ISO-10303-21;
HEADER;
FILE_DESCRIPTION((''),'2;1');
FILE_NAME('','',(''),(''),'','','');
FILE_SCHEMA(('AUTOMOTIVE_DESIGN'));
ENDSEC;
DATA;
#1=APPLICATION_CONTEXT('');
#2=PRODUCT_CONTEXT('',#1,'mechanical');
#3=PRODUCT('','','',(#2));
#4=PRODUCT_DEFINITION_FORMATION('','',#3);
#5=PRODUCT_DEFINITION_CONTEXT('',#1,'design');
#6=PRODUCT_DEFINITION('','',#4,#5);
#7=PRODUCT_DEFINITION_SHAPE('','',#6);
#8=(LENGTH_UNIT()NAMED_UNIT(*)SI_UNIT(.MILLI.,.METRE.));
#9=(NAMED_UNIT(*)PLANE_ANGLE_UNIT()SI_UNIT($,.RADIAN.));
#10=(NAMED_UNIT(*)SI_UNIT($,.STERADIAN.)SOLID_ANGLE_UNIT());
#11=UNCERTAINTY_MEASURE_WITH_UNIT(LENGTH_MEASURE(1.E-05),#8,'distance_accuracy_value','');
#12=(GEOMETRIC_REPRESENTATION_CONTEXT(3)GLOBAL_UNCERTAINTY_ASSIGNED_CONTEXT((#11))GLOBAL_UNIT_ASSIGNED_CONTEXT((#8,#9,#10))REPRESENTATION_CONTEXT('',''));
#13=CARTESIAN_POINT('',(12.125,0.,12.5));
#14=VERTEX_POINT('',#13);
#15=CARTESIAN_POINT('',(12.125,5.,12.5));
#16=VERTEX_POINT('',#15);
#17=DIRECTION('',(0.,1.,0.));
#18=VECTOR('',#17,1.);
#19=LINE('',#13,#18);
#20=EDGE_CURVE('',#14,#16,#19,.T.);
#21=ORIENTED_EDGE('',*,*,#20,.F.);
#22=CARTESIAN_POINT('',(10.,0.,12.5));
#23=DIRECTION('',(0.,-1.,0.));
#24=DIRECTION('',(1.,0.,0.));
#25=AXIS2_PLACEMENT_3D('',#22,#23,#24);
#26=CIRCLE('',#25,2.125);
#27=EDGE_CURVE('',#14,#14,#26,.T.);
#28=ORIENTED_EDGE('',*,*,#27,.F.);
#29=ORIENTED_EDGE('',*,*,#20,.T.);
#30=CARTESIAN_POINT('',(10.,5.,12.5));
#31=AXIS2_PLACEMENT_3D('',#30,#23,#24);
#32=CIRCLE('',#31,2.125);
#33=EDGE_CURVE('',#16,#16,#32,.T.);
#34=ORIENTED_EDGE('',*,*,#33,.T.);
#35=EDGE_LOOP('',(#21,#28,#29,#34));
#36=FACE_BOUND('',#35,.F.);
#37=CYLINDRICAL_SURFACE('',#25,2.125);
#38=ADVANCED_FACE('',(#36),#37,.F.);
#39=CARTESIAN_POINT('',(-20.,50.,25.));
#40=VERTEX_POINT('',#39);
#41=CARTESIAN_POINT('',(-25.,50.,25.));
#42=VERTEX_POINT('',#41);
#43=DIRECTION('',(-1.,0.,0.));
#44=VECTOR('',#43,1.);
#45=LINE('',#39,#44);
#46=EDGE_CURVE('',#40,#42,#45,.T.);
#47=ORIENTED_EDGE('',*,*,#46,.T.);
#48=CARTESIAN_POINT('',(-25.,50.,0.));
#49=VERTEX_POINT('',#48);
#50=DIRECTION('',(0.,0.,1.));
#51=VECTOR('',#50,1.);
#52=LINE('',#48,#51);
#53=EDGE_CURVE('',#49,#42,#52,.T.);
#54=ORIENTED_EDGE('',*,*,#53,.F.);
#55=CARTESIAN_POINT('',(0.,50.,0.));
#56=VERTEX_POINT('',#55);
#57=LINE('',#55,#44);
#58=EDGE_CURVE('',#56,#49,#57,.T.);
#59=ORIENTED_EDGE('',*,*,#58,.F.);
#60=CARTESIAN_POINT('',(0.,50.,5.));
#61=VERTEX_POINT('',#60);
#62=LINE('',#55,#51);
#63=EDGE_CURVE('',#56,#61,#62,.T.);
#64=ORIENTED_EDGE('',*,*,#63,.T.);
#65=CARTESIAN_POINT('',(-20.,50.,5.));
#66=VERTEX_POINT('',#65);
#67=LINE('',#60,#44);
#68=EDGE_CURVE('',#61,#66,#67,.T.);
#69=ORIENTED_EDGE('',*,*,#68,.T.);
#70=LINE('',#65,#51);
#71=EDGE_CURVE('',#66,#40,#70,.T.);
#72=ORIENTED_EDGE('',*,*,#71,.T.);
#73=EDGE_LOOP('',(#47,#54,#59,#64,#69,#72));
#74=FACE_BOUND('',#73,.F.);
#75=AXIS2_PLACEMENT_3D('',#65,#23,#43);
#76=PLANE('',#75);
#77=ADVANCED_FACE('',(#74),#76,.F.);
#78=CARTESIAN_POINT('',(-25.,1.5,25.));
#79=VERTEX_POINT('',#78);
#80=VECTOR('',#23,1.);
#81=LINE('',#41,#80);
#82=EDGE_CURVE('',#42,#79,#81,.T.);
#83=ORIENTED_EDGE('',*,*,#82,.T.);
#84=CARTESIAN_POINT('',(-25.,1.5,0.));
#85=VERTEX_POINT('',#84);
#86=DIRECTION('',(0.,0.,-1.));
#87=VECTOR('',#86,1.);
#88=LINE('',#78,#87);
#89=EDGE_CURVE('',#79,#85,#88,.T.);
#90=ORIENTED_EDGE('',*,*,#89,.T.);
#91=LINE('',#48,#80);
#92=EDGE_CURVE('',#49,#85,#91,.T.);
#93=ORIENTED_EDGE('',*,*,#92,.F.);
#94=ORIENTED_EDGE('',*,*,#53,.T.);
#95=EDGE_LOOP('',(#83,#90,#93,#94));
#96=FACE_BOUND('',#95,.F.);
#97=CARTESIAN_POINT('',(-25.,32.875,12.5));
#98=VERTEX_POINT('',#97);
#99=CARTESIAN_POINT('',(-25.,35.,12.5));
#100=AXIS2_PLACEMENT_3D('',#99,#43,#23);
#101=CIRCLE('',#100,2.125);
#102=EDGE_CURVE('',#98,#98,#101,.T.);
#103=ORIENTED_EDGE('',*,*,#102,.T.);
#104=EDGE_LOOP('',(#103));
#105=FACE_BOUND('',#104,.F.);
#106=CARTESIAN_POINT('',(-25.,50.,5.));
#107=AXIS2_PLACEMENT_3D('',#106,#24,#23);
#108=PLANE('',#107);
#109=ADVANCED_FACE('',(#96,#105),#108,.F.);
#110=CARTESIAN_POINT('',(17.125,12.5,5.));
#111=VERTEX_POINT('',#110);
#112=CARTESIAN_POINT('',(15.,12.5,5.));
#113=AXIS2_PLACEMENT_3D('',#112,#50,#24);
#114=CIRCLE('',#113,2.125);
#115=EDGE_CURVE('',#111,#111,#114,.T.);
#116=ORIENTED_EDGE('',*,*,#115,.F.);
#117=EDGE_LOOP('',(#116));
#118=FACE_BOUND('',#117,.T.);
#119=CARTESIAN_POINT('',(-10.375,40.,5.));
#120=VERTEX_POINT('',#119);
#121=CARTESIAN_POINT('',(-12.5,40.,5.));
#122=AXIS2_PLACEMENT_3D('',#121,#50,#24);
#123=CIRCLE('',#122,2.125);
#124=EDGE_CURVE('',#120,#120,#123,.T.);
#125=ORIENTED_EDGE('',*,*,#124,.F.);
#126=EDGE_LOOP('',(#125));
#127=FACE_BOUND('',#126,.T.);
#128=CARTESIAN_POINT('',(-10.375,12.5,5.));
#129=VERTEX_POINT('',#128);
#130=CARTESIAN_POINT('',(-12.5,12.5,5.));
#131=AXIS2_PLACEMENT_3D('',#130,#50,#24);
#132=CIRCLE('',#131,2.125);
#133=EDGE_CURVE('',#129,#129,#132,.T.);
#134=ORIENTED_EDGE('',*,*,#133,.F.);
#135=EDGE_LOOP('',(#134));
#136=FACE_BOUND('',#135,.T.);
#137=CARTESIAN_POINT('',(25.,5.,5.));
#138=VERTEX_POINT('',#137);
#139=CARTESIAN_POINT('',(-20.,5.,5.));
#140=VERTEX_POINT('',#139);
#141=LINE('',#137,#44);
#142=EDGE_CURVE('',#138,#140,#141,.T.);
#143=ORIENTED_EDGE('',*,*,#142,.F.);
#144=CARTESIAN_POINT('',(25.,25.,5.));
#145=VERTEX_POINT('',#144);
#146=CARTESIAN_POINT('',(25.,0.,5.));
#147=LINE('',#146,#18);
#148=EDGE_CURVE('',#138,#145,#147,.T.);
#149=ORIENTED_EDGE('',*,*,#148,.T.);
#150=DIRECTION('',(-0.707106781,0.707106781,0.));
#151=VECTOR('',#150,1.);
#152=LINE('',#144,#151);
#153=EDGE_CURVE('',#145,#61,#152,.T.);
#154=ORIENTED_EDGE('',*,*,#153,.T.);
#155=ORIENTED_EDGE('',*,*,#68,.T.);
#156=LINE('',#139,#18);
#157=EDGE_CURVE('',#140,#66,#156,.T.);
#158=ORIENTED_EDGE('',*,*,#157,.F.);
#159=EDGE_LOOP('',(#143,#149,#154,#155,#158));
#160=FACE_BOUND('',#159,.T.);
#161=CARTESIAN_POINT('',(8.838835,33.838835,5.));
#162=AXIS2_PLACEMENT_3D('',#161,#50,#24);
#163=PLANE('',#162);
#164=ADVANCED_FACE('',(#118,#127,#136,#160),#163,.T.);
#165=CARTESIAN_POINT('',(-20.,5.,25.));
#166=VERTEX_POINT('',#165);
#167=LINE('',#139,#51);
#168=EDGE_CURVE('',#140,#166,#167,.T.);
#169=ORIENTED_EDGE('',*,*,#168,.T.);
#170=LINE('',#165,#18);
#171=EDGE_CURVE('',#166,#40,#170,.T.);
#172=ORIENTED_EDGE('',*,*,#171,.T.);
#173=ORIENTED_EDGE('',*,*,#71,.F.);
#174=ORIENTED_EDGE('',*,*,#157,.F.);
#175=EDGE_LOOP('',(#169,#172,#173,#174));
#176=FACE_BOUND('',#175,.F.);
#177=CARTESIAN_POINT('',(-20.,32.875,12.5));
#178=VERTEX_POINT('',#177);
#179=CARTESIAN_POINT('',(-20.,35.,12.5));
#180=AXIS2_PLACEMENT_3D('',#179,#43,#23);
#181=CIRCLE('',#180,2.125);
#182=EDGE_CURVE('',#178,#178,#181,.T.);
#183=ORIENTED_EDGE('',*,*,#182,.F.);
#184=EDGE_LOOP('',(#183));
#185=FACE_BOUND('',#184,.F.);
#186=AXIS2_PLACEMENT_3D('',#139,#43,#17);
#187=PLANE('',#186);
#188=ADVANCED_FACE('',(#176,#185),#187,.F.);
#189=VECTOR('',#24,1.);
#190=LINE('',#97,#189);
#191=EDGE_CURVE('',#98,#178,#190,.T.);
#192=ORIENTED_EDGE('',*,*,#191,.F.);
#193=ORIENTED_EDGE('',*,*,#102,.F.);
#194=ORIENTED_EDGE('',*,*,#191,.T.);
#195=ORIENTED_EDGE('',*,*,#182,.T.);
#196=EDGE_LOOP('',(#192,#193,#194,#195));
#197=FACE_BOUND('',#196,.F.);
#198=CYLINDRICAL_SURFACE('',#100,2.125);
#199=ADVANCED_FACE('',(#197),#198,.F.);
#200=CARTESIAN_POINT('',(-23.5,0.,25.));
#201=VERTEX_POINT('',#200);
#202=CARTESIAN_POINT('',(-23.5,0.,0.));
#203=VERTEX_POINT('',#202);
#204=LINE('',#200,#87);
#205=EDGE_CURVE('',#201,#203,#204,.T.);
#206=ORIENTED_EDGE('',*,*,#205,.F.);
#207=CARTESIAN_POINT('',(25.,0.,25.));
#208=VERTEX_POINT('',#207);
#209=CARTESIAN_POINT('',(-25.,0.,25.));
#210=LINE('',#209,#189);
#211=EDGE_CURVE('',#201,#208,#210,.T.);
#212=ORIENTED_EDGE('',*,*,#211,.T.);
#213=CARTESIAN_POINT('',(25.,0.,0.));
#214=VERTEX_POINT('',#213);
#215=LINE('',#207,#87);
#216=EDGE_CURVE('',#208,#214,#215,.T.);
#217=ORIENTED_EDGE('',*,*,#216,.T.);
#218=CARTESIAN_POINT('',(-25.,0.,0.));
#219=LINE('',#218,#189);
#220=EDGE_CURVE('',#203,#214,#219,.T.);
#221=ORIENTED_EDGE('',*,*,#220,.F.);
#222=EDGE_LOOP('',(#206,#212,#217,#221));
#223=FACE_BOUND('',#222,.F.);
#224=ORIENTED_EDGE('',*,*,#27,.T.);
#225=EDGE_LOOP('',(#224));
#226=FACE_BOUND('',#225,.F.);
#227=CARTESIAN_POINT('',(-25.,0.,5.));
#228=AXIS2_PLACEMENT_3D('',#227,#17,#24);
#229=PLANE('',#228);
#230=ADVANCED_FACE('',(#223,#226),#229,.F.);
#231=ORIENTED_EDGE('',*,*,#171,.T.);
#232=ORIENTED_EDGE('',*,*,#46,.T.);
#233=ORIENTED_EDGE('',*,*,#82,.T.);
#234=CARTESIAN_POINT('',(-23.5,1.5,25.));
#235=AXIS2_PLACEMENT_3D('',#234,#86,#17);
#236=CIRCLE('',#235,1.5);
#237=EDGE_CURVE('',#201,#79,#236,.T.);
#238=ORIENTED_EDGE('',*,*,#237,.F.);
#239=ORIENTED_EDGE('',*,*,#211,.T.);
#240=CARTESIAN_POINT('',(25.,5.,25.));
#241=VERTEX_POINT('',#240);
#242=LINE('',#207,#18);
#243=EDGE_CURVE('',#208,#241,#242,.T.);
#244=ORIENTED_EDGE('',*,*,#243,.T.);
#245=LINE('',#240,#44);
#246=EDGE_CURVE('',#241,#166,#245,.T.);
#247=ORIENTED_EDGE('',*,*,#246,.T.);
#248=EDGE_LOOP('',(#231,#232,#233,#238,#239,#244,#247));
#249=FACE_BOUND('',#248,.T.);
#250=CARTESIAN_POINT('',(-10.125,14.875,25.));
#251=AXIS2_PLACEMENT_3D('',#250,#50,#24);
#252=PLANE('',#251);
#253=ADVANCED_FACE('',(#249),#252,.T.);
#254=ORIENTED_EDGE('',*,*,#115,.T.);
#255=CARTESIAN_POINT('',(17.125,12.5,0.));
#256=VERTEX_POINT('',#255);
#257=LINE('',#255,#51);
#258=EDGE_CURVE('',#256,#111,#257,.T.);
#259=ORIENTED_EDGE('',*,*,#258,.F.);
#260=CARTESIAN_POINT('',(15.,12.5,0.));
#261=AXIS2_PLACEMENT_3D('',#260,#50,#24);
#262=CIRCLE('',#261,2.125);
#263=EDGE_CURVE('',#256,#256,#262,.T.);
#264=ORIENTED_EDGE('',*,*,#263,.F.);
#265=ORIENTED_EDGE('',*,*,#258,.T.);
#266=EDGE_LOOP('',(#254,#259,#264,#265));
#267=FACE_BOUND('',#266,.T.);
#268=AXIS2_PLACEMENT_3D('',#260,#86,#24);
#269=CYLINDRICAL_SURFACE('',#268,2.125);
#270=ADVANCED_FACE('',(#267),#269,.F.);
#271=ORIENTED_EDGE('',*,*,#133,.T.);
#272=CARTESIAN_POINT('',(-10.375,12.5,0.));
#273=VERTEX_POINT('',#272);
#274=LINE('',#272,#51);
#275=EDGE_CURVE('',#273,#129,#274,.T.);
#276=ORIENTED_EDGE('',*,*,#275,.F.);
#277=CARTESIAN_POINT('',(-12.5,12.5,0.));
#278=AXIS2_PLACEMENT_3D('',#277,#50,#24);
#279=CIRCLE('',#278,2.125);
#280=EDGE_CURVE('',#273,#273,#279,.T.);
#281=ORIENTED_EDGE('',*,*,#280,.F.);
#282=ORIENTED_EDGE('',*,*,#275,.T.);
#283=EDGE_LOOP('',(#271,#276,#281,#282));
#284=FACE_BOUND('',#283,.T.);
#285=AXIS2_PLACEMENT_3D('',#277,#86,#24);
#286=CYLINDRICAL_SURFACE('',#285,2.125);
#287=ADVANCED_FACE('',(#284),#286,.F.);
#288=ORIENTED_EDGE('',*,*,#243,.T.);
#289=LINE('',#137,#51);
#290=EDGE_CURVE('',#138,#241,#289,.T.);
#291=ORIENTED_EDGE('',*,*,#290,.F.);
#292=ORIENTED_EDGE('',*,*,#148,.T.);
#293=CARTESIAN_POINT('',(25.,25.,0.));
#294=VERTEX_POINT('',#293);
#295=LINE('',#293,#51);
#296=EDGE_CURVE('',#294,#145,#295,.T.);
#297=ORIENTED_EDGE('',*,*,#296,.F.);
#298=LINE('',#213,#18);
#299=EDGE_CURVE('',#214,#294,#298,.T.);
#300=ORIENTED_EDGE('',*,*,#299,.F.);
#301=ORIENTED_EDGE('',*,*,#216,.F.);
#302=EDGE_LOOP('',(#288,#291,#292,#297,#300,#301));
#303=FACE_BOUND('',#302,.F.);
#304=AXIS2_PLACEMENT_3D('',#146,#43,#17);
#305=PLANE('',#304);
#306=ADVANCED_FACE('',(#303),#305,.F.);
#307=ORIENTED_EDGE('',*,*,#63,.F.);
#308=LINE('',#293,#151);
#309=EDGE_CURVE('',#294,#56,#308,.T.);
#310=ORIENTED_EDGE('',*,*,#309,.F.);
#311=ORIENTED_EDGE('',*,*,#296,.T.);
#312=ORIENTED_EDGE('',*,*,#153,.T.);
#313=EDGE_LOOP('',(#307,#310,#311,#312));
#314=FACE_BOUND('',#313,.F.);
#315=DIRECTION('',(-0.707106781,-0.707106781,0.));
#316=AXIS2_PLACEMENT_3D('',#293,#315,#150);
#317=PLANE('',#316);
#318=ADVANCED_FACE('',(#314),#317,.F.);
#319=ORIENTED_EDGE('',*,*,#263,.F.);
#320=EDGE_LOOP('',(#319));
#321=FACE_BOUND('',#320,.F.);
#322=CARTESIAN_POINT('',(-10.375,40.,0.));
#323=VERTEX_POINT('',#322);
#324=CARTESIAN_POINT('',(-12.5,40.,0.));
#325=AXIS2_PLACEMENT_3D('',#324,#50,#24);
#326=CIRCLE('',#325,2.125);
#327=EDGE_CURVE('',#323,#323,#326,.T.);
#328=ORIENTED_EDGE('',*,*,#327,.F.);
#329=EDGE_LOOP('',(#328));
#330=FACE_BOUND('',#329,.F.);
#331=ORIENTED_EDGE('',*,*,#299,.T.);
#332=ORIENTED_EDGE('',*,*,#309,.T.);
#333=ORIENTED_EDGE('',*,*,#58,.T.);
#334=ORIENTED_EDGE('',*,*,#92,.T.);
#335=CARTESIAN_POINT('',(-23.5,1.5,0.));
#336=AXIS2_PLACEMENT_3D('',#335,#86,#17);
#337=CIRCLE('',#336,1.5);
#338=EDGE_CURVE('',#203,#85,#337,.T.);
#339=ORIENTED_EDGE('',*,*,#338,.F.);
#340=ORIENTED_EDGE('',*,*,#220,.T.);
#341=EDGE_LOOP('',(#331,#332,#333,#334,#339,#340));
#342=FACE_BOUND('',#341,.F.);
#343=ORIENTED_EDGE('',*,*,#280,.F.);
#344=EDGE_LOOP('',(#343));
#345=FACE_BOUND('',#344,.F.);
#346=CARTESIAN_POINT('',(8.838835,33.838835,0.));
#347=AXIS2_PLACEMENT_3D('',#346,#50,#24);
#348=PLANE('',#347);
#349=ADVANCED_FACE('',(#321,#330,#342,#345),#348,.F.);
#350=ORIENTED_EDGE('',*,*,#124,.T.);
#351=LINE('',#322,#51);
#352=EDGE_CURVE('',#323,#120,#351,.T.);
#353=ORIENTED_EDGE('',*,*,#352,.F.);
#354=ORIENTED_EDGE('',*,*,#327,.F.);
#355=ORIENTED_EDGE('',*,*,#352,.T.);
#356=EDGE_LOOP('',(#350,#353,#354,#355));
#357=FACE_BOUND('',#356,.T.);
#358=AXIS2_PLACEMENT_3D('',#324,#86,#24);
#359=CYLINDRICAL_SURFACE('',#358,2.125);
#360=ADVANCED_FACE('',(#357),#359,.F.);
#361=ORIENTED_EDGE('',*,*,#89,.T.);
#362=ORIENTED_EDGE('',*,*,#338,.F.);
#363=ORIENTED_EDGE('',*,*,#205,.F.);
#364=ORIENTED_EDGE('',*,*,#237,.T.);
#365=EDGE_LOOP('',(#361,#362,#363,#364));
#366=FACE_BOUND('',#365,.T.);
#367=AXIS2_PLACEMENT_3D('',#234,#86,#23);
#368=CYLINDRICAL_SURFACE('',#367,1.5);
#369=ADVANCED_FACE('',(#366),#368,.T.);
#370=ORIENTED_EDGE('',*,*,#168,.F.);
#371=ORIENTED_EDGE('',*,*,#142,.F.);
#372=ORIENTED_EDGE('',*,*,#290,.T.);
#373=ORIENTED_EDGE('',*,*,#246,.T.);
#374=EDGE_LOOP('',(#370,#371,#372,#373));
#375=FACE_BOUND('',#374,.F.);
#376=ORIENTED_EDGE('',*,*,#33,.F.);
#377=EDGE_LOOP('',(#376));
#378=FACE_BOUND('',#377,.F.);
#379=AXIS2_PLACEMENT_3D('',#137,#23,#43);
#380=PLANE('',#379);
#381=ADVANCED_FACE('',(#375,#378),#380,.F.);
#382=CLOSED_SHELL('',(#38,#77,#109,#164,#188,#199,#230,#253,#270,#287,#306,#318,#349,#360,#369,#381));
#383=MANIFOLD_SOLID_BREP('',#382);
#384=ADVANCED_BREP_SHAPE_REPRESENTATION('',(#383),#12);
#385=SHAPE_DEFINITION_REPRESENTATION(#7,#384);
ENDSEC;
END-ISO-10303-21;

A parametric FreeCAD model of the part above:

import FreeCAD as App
import Part
import Sketcher
Q = App.Units.Quantity


def edges_at(feature, points):
    """Names of the edges that pass closest to the given points."""
    edges = feature.Shape.Edges
    near = lambda p: min(range(len(edges)), key=lambda i: edges[i].distToShape(Part.Vertex(*p))[0])
    return sorted({f"Edge{near(p) + 1}" for p in points})


def add_polygon(sketch, points):
    """Adds a closed chain of lines whose ends are joined by coincident constraints."""
    first, n = sketch.GeometryCount, len(points)
    for a, b in zip(points, points[1:] + points[:1]):
        sketch.addGeometry(Part.LineSegment(App.Vector(*a, 0), App.Vector(*b, 0)), False)
    for i in range(n):
        sketch.addConstraint(Sketcher.Constraint("Coincident", first + i, 2, first + (i + 1) % n, 1))

doc = App.newDocument("Part")
body = doc.addObject("PartDesign::Body", "Body")

sketch1 = doc.addObject("Sketcher::SketchObject", "Sketch")
body.addObject(sketch1)
sketch1.AttachmentSupport = (doc.XY_Plane, [""])
sketch1.MapMode = "FlatFace"
add_polygon(sketch1, [(0, 25), (0, 50), (-25, 50), (-25, 0), (25, 0), (25, 25)])
sketch1.addGeometry(Part.Circle(App.Vector(-12.5, 12.5, 0), App.Vector(0, 0, 1), 2.1), False)
sketch1.addGeometry(Part.Circle(App.Vector(15, 12.5, 0), App.Vector(0, 0, 1), 2.1), False)
sketch1.addGeometry(Part.Circle(App.Vector(-12.5, 40, 0), App.Vector(0, 0, 1), 2.1), False)
sketch1.addConstraint([
    Sketcher.Constraint("Vertical", 0),
    Sketcher.Constraint("Horizontal", 1),
    Sketcher.Constraint("Vertical", 2),
    Sketcher.Constraint("Horizontal", 3),
    Sketcher.Constraint("Vertical", 4),
    Sketcher.Constraint("Horizontal", 5),
    Sketcher.Constraint("Equal", 6, 7),
    Sketcher.Constraint("Equal", 7, 8),
    Sketcher.Constraint("Symmetric", 2, 2, 3, 2, -1, 1),
    Sketcher.Constraint("PointOnObject", 0, 2, -2),
    Sketcher.Constraint("Horizontal", 6, 3, 7, 3),
    Sketcher.Constraint("Vertical", 6, 3, 8, 3),
    Sketcher.Constraint("Equal", 5, 0),
    Sketcher.Constraint("Equal", 3, 2),
    Sketcher.Constraint("Diameter", 6, Q("4.25 mm")),
    Sketcher.Constraint("DistanceX", 1, 2, 1, 1, Q("25 mm")),
    Sketcher.Constraint("DistanceX", -1, 1, 7, 3, Q("15 mm")),
    Sketcher.Constraint("DistanceY", -1, 1, 8, 3, Q("40 mm")),
    Sketcher.Constraint("DistanceX", 6, 3, -1, 1, Q("12.5 mm")),
    Sketcher.Constraint("DistanceY", -1, 1, 6, 3, Q("12.5 mm")),
])
pad1 = doc.addObject("PartDesign::Pad", "Pad")
body.addObject(pad1)
pad1.Profile = sketch1
pad1.Length = 5

sketch2 = doc.addObject("Sketcher::SketchObject", "Sketch001")
body.addObject(sketch2)
sketch2.AttachmentSupport = (doc.XY_Plane, [""])
sketch2.MapMode = "FlatFace"
sketch2.AttachmentOffset = App.Placement(App.Vector(0, 0, 5), App.Rotation())
add_polygon(sketch2, [(25, 5), (-20, 5), (-20, 50), (-25, 50), (-25, 0), (25, 0)])
sketch2.addConstraint([
    Sketcher.Constraint("Horizontal", 0),
    Sketcher.Constraint("Vertical", 1),
    Sketcher.Constraint("Horizontal", 2),
    Sketcher.Constraint("Vertical", 3),
    Sketcher.Constraint("Horizontal", 4),
    Sketcher.Constraint("Vertical", 5),
    Sketcher.Constraint("Symmetric", 3, 2, 4, 2, -1, 1),
    Sketcher.Constraint("Equal", 0, 1),
    Sketcher.Constraint("Equal", 4, 3),
    Sketcher.Constraint("DistanceX", 0, 2, 0, 1, Q("45 mm")),
    Sketcher.Constraint("DistanceX", 2, 2, 2, 1, Q("5 mm")),
])
pad2 = doc.addObject("PartDesign::Pad", "Pad001")
body.addObject(pad2)
pad2.Profile = sketch2
pad2.Length = 20

sketch3 = doc.addObject("Sketcher::SketchObject", "Sketch002")
body.addObject(sketch3)
sketch3.AttachmentSupport = (doc.XZ_Plane, [""])
sketch3.MapMode = "FlatFace"
sketch3.addGeometry(Part.Circle(App.Vector(10, 12.5, 0), App.Vector(0, 0, 1), 2.1), False)
sketch3.addConstraint([
    Sketcher.Constraint("Diameter", 0, Q("4.25 mm")),
    Sketcher.Constraint("DistanceX", -1, 1, 0, 3, Q("10 mm")),
    Sketcher.Constraint("DistanceY", -1, 1, 0, 3, Q("12.5 mm")),
])
pocket1 = doc.addObject("PartDesign::Pocket", "Pocket")
body.addObject(pocket1)
pocket1.Profile = sketch3
pocket1.Length = 5

sketch4 = doc.addObject("Sketcher::SketchObject", "Sketch003")
body.addObject(sketch4)
sketch4.AttachmentSupport = (doc.XY_Plane, [""])
sketch4.MapMode = "FlatFace"
add_polygon(sketch4, [(25, 25), (0, 50), (0, 25)])
sketch4.addConstraint([
    Sketcher.Constraint("Vertical", 1),
    Sketcher.Constraint("Horizontal", 2),
    Sketcher.Constraint("PointOnObject", 0, 2, -2),
    Sketcher.Constraint("Equal", 2, 1),
    Sketcher.Constraint("DistanceX", 2, 1, 2, 2, Q("25 mm")),
    Sketcher.Constraint("DistanceY", -1, 1, 0, 2, Q("50 mm")),
])
pad3 = doc.addObject("PartDesign::Pad", "Pad002")
body.addObject(pad3)
pad3.Profile = sketch4
pad3.Length = 5
doc.recompute()

fillet = doc.addObject("PartDesign::Fillet", "Fillet")
body.addObject(fillet)
fillet.Base = (pad3, edges_at(pad3, [(-25, 0, 12.5)]))
fillet.Radius = 1.5

sketch5 = doc.addObject("Sketcher::SketchObject", "Sketch004")
body.addObject(sketch5)
sketch5.AttachmentSupport = (doc.YZ_Plane, [""])
sketch5.MapMode = "FlatFace"
sketch5.AttachmentOffset = App.Placement(App.Vector(0, 0, -25), App.Rotation())
sketch5.addGeometry(Part.Circle(App.Vector(35, 12.5, 0), App.Vector(0, 0, 1), 2.1), False)
sketch5.addConstraint([
    Sketcher.Constraint("Diameter", 0, Q("4.25 mm")),
    Sketcher.Constraint("DistanceX", -1, 1, 0, 3, Q("35 mm")),
    Sketcher.Constraint("DistanceY", -1, 1, 0, 3, Q("12.5 mm")),
])
pocket2 = doc.addObject("PartDesign::Pocket", "Pocket001")
body.addObject(pocket2)
pocket2.Profile = sketch5
pocket2.Length = 25
pocket2.Reversed = True

doc.recompute()
